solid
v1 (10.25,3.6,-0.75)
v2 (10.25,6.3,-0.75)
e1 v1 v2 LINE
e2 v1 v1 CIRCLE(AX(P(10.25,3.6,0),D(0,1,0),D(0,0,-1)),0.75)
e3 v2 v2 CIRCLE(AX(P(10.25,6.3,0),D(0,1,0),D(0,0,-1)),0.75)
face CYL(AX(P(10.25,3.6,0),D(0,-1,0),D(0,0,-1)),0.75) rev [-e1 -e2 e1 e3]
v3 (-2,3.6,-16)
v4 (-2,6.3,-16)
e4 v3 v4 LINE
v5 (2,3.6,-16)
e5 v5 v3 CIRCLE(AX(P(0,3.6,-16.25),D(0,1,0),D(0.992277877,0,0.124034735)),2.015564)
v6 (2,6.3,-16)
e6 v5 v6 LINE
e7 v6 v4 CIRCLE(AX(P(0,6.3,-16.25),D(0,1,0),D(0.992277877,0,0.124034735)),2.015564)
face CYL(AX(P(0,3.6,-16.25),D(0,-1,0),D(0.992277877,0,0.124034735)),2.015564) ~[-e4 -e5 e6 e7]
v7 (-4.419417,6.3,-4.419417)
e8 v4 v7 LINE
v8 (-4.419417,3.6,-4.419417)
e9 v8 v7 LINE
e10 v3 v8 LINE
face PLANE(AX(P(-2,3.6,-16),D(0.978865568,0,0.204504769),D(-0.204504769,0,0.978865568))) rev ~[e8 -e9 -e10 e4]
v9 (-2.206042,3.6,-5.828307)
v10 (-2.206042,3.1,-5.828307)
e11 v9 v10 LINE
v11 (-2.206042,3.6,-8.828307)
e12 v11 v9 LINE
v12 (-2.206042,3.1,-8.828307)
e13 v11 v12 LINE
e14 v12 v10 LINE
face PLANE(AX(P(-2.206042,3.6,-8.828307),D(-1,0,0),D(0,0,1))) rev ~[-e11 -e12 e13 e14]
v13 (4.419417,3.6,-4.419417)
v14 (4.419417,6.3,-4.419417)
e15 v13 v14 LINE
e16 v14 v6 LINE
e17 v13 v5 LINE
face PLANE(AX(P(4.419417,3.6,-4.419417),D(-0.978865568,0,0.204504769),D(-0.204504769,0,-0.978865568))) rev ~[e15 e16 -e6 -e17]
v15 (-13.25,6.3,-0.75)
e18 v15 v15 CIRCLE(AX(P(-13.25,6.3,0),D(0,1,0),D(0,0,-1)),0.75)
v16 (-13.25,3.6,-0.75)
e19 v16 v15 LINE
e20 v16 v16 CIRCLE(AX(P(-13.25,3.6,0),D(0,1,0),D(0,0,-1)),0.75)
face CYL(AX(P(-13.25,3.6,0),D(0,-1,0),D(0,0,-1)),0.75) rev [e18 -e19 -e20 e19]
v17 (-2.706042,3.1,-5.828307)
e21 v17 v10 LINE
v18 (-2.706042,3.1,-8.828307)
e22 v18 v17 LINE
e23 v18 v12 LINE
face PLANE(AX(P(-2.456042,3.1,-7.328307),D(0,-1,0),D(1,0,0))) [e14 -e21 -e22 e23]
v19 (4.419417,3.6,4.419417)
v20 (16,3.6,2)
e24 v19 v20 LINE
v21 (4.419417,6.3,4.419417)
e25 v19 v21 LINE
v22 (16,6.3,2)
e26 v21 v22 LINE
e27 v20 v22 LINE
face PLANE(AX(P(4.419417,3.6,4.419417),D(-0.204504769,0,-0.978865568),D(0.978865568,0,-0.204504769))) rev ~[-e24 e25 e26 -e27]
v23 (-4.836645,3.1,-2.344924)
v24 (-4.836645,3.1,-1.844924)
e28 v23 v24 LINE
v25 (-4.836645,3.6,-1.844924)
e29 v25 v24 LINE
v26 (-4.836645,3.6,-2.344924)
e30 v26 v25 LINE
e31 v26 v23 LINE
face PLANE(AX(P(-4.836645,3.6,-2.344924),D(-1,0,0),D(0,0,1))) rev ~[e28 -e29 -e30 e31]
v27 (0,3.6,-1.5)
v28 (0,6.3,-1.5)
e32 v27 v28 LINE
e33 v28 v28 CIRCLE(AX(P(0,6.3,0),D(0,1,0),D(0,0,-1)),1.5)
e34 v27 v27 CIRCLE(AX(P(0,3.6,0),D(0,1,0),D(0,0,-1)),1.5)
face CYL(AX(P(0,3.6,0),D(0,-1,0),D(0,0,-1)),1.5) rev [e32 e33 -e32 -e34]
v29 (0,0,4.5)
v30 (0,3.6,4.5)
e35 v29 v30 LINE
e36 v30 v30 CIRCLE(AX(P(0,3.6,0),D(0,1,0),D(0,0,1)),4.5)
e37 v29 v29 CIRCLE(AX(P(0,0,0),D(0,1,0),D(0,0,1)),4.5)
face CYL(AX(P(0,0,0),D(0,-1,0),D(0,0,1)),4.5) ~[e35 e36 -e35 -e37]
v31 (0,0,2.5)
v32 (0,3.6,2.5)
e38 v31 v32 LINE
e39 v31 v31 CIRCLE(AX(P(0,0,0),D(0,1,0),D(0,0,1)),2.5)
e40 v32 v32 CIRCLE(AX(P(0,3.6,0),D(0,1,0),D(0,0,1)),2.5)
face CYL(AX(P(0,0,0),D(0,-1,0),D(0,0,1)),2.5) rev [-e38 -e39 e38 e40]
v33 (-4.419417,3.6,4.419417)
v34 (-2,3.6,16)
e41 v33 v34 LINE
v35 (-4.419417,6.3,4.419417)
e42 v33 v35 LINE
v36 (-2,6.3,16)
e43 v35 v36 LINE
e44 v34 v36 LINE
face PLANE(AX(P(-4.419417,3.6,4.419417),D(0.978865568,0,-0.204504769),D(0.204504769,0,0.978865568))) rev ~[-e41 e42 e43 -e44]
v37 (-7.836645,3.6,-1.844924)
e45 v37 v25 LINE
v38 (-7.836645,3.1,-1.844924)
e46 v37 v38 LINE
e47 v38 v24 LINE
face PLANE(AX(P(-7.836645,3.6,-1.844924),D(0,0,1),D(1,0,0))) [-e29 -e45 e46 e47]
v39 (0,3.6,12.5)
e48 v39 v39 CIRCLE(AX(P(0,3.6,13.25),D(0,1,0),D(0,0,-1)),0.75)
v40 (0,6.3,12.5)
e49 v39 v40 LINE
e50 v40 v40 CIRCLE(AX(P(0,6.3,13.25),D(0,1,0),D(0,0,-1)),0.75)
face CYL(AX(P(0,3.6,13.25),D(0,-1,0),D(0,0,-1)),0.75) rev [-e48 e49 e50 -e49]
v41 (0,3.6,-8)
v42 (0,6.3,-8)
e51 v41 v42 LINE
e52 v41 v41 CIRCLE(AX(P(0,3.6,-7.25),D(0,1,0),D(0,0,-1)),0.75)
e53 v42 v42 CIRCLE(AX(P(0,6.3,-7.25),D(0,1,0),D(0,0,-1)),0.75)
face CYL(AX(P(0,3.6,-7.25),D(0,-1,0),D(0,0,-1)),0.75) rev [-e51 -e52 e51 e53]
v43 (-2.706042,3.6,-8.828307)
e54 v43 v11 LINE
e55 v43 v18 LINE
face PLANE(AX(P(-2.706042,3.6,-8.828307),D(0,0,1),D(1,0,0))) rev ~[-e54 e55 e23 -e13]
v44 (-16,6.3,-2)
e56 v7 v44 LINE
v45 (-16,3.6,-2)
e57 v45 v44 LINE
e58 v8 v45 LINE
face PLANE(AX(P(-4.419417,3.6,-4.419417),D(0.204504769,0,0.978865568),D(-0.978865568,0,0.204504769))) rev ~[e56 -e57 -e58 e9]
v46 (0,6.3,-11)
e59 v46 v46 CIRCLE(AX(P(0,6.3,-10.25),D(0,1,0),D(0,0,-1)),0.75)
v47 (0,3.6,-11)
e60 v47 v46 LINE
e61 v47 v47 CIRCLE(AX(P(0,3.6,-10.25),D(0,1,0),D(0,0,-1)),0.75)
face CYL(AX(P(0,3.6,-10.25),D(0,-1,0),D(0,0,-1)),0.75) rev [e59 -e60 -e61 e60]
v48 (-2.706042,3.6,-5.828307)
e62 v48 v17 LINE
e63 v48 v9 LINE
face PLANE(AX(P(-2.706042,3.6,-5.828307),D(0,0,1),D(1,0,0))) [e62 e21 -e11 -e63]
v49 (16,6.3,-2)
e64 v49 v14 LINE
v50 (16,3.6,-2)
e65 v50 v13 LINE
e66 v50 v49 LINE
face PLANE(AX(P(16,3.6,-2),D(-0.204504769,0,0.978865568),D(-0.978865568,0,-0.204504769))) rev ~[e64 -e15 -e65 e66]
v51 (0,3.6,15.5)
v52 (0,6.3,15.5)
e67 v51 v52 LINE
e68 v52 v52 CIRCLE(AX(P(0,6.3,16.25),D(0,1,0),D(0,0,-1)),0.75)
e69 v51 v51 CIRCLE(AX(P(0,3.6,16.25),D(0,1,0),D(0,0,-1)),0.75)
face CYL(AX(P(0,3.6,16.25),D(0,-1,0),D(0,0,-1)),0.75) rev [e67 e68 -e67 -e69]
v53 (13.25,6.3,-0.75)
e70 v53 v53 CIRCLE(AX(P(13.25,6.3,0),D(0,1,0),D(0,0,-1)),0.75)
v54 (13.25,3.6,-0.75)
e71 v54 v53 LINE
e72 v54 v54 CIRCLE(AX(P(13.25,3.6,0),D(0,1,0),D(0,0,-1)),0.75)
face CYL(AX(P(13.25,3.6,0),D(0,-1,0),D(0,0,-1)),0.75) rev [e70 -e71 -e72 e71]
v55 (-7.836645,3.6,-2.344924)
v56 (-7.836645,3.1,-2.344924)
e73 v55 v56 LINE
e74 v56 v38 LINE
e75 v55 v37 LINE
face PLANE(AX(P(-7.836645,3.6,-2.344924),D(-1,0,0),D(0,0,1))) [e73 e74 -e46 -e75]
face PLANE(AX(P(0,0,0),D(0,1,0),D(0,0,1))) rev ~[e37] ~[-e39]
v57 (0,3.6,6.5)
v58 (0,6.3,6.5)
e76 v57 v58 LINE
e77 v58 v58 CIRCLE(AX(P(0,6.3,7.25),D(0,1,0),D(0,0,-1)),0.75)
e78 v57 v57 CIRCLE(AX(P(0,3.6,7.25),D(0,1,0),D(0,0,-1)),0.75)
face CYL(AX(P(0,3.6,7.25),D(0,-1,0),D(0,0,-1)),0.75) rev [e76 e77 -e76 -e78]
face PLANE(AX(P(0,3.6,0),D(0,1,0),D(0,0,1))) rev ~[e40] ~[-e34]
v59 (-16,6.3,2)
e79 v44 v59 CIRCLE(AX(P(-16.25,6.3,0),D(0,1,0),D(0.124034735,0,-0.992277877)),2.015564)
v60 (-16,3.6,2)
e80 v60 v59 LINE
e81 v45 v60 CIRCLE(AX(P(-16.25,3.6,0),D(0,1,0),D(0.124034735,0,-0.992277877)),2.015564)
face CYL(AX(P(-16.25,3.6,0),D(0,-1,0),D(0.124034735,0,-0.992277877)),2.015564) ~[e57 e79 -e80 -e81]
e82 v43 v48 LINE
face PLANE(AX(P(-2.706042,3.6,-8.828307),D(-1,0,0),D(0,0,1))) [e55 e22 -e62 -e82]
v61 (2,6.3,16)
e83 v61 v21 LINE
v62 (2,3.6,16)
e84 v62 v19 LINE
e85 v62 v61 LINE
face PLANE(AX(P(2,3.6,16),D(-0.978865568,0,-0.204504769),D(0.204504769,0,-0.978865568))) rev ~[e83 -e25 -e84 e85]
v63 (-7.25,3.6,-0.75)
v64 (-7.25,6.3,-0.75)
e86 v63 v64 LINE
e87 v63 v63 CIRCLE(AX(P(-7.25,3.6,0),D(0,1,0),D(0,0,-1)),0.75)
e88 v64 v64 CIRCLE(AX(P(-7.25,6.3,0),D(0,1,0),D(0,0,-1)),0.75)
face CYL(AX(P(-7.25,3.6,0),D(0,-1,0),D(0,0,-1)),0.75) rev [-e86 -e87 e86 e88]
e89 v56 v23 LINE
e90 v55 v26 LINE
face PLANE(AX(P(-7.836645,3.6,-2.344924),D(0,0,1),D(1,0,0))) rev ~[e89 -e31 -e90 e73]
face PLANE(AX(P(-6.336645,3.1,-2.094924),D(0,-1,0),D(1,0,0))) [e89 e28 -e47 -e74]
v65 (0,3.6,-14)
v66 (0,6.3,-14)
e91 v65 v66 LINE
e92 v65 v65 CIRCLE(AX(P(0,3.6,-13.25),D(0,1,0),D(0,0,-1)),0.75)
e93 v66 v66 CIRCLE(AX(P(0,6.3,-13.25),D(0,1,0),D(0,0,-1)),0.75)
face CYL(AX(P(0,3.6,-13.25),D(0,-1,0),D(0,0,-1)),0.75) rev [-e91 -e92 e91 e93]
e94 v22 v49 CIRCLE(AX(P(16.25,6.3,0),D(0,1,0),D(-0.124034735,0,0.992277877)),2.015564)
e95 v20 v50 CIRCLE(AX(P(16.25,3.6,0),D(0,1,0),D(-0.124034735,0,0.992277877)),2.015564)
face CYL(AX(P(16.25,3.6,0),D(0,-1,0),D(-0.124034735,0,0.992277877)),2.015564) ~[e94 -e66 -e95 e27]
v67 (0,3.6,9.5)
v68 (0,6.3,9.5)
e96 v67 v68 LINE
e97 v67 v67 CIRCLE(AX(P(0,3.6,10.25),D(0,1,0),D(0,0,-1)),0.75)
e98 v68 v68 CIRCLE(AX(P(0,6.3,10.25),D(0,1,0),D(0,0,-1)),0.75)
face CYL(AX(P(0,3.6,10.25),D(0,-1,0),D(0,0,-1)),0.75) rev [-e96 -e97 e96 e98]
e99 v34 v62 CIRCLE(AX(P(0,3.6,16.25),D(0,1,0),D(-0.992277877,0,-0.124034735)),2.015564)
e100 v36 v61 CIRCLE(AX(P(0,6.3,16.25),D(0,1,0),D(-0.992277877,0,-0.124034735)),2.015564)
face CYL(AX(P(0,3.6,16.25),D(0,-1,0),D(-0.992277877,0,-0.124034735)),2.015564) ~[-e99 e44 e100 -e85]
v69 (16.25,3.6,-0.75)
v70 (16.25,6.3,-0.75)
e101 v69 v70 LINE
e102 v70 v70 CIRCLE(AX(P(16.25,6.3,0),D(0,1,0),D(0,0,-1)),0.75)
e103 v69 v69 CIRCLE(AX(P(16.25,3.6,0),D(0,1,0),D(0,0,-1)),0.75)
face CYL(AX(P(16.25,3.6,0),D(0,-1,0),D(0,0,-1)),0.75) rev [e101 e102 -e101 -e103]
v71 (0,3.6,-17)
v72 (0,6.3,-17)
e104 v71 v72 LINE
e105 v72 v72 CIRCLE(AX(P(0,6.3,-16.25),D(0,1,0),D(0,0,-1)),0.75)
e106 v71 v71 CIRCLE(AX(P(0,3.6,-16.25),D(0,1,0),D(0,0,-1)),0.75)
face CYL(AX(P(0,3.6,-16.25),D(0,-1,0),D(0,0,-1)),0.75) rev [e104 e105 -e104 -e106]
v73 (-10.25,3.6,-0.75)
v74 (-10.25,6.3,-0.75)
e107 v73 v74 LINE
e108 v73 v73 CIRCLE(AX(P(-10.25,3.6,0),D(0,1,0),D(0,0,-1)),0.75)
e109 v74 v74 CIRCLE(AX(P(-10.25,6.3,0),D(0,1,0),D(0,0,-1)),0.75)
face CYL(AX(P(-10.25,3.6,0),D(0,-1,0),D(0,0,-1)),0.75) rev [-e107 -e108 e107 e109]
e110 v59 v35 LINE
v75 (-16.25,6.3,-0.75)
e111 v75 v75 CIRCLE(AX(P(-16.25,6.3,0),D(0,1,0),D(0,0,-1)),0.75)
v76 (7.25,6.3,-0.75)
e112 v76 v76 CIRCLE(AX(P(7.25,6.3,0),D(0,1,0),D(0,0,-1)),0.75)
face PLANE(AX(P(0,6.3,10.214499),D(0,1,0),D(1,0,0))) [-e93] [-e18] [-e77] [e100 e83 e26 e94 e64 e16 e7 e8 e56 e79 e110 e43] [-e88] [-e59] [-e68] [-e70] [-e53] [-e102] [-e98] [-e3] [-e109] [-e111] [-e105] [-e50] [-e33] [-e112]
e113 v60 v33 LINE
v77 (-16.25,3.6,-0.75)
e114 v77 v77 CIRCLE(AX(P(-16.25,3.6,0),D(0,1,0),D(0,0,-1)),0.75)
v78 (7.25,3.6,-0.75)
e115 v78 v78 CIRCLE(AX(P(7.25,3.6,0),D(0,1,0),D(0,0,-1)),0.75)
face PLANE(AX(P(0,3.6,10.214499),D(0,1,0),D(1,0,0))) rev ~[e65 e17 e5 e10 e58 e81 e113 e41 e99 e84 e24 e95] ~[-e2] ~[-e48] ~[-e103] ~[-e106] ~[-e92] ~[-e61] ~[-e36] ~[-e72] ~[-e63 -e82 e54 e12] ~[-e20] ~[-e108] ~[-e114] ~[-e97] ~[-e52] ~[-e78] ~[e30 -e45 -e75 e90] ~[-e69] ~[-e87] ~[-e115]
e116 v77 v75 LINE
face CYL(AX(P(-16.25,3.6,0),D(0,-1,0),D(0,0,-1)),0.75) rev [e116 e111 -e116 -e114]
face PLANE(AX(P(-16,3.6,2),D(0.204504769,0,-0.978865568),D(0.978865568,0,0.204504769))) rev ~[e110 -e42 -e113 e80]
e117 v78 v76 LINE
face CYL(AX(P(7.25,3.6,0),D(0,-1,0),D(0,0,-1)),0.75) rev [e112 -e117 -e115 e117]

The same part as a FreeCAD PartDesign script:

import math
import FreeCAD as App
import Part
import Sketcher
Q = App.Units.Quantity

doc = App.newDocument("Part")
body = doc.addObject("PartDesign::Body", "Body")

# Sketch on XZ plane
sketch1 = body.newObject("Sketcher::SketchObject", "Sketch")
sketch1.AttachmentSupport = (doc.getObject("XZ_Plane"), [""])
sketch1.MapMode = "FlatFace"
sketch1.addGeometry([
    Part.Circle(App.Vector(0, 0, 0), App.Vector(0, 0, 1), 4.5),
    Part.Circle(App.Vector(0, 0, 0), App.Vector(0, 0, 1), 2.5),
], False)
sketch1.addConstraint([
    Sketcher.Constraint("Coincident", 0, 3, -1, 1),
    Sketcher.Constraint("Coincident", 1, 3, -1, 1),
    Sketcher.Constraint("Diameter", 0, Q("9 mm")),
    Sketcher.Constraint("Diameter", 1, Q("5 mm")),
])
pad1 = body.newObject("PartDesign::Pad", "Pad")
pad1.Profile = sketch1
pad1.Length = 3.6
pad1.Reversed = True

# Sketch on XZ plane
sketch2 = body.newObject("Sketcher::SketchObject", "Sketch001")
sketch2.AttachmentSupport = (doc.getObject("XZ_Plane"), [""])
sketch2.MapMode = "FlatFace"
sketch2.AttachmentOffset = App.Placement(App.Vector(0, 0, -3.6), App.Rotation())
sketch2.addGeometry([
    Part.LineSegment(App.Vector(2, 16, 0), App.Vector(4.4, 4.4, 0)),  # 0
    Part.LineSegment(App.Vector(4.4, 4.4, 0), App.Vector(16, 2, 0)),  # 1
    Part.ArcOfCircle(Part.Circle(App.Vector(16.2, 0, 0), App.Vector(0, 0, 1), 2), math.radians(-97), math.radians(97)),  # 2
    Part.LineSegment(App.Vector(16, -2, 0), App.Vector(4.4, -4.4, 0)),  # 3
    Part.LineSegment(App.Vector(4.4, -4.4, 0), App.Vector(2, -16, 0)),  # 4
    Part.ArcOfCircle(Part.Circle(App.Vector(0, -16.2, 0), App.Vector(0, 0, 1), 2), math.radians(173), math.radians(367)),  # 5
    Part.LineSegment(App.Vector(-2, -16, 0), App.Vector(-4.4, -4.4, 0)),  # 6
    Part.LineSegment(App.Vector(-4.4, -4.4, 0), App.Vector(-16, -2, 0)),  # 7
    Part.ArcOfCircle(Part.Circle(App.Vector(-16.2, 0, 0), App.Vector(0, 0, 1), 2), math.radians(83), math.radians(277)),  # 8
    Part.LineSegment(App.Vector(-16, 2, 0), App.Vector(-4.4, 4.4, 0)),  # 9
    Part.LineSegment(App.Vector(-4.4, 4.4, 0), App.Vector(-2, 16, 0)),  # 10
    Part.ArcOfCircle(Part.Circle(App.Vector(0, 16.2, 0), App.Vector(0, 0, 1), 2), math.radians(-7), math.radians(187)),  # 11
    Part.Circle(App.Vector(0, 16.2, 0), App.Vector(0, 0, 1), 0.8),  # 12
    Part.Circle(App.Vector(0, 13.2, 0), App.Vector(0, 0, 1), 0.8),  # 13
    Part.Circle(App.Vector(0, 10.2, 0), App.Vector(0, 0, 1), 0.8),  # 14
    Part.Circle(App.Vector(0, 7.2, 0), App.Vector(0, 0, 1), 0.8),  # 15
    Part.Circle(App.Vector(16.2, 0, 0), App.Vector(0, 0, 1), 0.8),  # 16
    Part.Circle(App.Vector(13.2, 0, 0), App.Vector(0, 0, 1), 0.8),  # 17
    Part.Circle(App.Vector(7.2, 0, 0), App.Vector(0, 0, 1), 0.8),  # 18
    Part.Circle(App.Vector(10.2, 0, 0), App.Vector(0, 0, 1), 0.8),  # 19
    Part.Circle(App.Vector(0, -16.2, 0), App.Vector(0, 0, 1), 0.8),  # 20
    Part.Circle(App.Vector(0, -7.2, 0), App.Vector(0, 0, 1), 0.8),  # 21
    Part.Circle(App.Vector(0, -10.2, 0), App.Vector(0, 0, 1), 0.8),  # 22
    Part.Circle(App.Vector(0, -13.2, 0), App.Vector(0, 0, 1), 0.8),  # 23
    Part.Circle(App.Vector(-7.2, 0, 0), App.Vector(0, 0, 1), 0.8),  # 24
    Part.Circle(App.Vector(-16.2, 0, 0), App.Vector(0, 0, 1), 0.8),  # 25
    Part.Circle(App.Vector(-13.2, 0, 0), App.Vector(0, 0, 1), 0.8),  # 26
    Part.Circle(App.Vector(-10.2, 0, 0), App.Vector(0, 0, 1), 0.8),  # 27
    Part.Circle(App.Vector(0, 0, 0), App.Vector(0, 0, 1), 1.5),  # 28
], False)
sketch2.addConstraint([
    Sketcher.Constraint("Coincident", 0, 2, 1, 1),
    Sketcher.Constraint("Coincident", 1, 2, 2, 2),
    Sketcher.Constraint("Coincident", 2, 1, 3, 1),
    Sketcher.Constraint("Coincident", 3, 2, 4, 1),
    Sketcher.Constraint("Coincident", 4, 2, 5, 2),
    Sketcher.Constraint("Coincident", 5, 1, 6, 1),
    Sketcher.Constraint("Coincident", 6, 2, 7, 1),
    Sketcher.Constraint("Coincident", 7, 2, 8, 2),
    Sketcher.Constraint("Coincident", 8, 1, 9, 1),
    Sketcher.Constraint("Coincident", 9, 2, 10, 1),
    Sketcher.Constraint("Coincident", 10, 2, 11, 2),
    Sketcher.Constraint("Coincident", 11, 1, 0, 1),
    Sketcher.Constraint("Coincident", 28, 3, -1, 1),
    Sketcher.Constraint("Coincident", 12, 3, 11, 3),
    Sketcher.Constraint("Coincident", 16, 3, 2, 3),
    Sketcher.Constraint("Coincident", 20, 3, 5, 3),
    Sketcher.Constraint("Coincident", 25, 3, 8, 3),
    Sketcher.Constraint("Equal", 2, 5),
    Sketcher.Constraint("Equal", 5, 8),
    Sketcher.Constraint("Equal", 8, 11),
    Sketcher.Constraint("Equal", 12, 13),
    Sketcher.Constraint("Equal", 13, 14),
    Sketcher.Constraint("Equal", 14, 15),
    Sketcher.Constraint("Equal", 15, 16),
    Sketcher.Constraint("Equal", 16, 17),
    Sketcher.Constraint("Equal", 17, 18),
    Sketcher.Constraint("Equal", 18, 19),
    Sketcher.Constraint("Equal", 19, 20),
    Sketcher.Constraint("Equal", 20, 21),
    Sketcher.Constraint("Equal", 21, 22),
    Sketcher.Constraint("Equal", 22, 23),
    Sketcher.Constraint("Equal", 23, 24),
    Sketcher.Constraint("Equal", 24, 25),
    Sketcher.Constraint("Equal", 25, 26),
    Sketcher.Constraint("Equal", 26, 27),
    Sketcher.Constraint("Symmetric", 2, 3, 8, 3, -1, 1),
    Sketcher.Constraint("Symmetric", 5, 3, 11, 3, -1, 1),
    Sketcher.Constraint("Symmetric", 15, 3, 21, 3, -1, 1),
    Sketcher.Constraint("Symmetric", 14, 3, 22, 3, -1, 1),
    Sketcher.Constraint("Symmetric", 13, 3, 23, 3, -1, 1),
    Sketcher.Constraint("Symmetric", 18, 3, 24, 3, -1, 1),
    Sketcher.Constraint("Symmetric", 17, 3, 26, 3, -1, 1),
    Sketcher.Constraint("Symmetric", 19, 3, 27, 3, -1, 1),
    Sketcher.Constraint("Symmetric", 0, 2, 6, 2, -1, 1),
    Sketcher.Constraint("Symmetric", 3, 2, 9, 2, -1, 1),
    Sketcher.Constraint("Symmetric", 4, 2, 5, 1, -2),
    Sketcher.Constraint("Symmetric", 3, 2, 6, 2, -2),
    Sketcher.Constraint("Symmetric", 2, 1, 7, 2, -2),
    Sketcher.Constraint("PointOnObject", 13, 3, -2),
    Sketcher.Constraint("PointOnObject", 14, 3, -2),
    Sketcher.Constraint("PointOnObject", 15, 3, -2),
    Sketcher.Constraint("PointOnObject", 17, 3, -1),
    Sketcher.Constraint("PointOnObject", 18, 3, -1),
    Sketcher.Constraint("PointOnObject", 19, 3, -1),
    Sketcher.Constraint("Perpendicular", 0, 3),
    Sketcher.Constraint("Perpendicular", 1, 4),
    Sketcher.Constraint("Perpendicular", 3, 6),
    Sketcher.Constraint("Perpendicular", 6, 9),
    Sketcher.Constraint("Perpendicular", 7, 10),
    Sketcher.Constraint("Equal", 0, 1),
    Sketcher.Constraint("Diameter", 28, Q("3 mm")),
    Sketcher.Constraint("Diameter", 12, Q("1.5 mm")),
    Sketcher.Constraint("DistanceX", -1, 1, 1, 2, Q("16 mm")),
    Sketcher.Constraint("DistanceY", -1, 1, 1, 2, Q("2 mm")),
    Sketcher.Constraint("DistanceX", -1, 1, 4, 2, Q("2 mm")),
    Sketcher.Constraint("DistanceY", 13, 3, 11, 3, Q("3 mm")),
    Sketcher.Constraint("DistanceY", 14, 3, 13, 3, Q("3 mm")),
    Sketcher.Constraint("DistanceY", 15, 3, 14, 3, Q("3 mm")),
    Sketcher.Constraint("DistanceX", 17, 3, 2, 3, Q("3 mm")),
    Sketcher.Constraint("DistanceX", 18, 3, 17, 3, Q("6 mm")),
    Sketcher.Constraint("DistanceX", 19, 3, 17, 3, Q("3 mm")),
    Sketcher.Constraint("DistanceX", 8, 3, 2, 3, Q("32.5 mm")),
    Sketcher.Constraint("Distance", 0, Q("11.830616 mm")),
])
pad2 = body.newObject("PartDesign::Pad", "Pad001")
pad2.Profile = sketch2
pad2.Length = 2.7
pad2.Reversed = True

# Sketch on XZ plane
sketch3 = body.newObject("Sketcher::SketchObject", "Sketch002")
sketch3.AttachmentSupport = (doc.getObject("XZ_Plane"), [""])
sketch3.MapMode = "FlatFace"
sketch3.AttachmentOffset = App.Placement(App.Vector(0, 0, -3.6), App.Rotation())
sketch3.addGeometry([
    Part.LineSegment(App.Vector(-7.8, -1.8, 0), App.Vector(-7.8, -2.3, 0)),  # 0
    Part.LineSegment(App.Vector(-7.8, -2.3, 0), App.Vector(-4.8, -2.3, 0)),  # 1
    Part.LineSegment(App.Vector(-4.8, -2.3, 0), App.Vector(-4.8, -1.8, 0)),  # 2
    Part.LineSegment(App.Vector(-4.8, -1.8, 0), App.Vector(-7.8, -1.8, 0)),  # 3
    Part.LineSegment(App.Vector(-2.7, -5.8, 0), App.Vector(-2.7, -8.8, 0)),  # 4
    Part.LineSegment(App.Vector(-2.7, -8.8, 0), App.Vector(-2.2, -8.8, 0)),  # 5
    Part.LineSegment(App.Vector(-2.2, -8.8, 0), App.Vector(-2.2, -5.8, 0)),  # 6
    Part.LineSegment(App.Vector(-2.2, -5.8, 0), App.Vector(-2.7, -5.8, 0)),  # 7
], False)
sketch3.addConstraint([
    Sketcher.Constraint("Coincident", 0, 2, 1, 1),
    Sketcher.Constraint("Coincident", 1, 2, 2, 1),
    Sketcher.Constraint("Coincident", 2, 2, 3, 1),
    Sketcher.Constraint("Coincident", 3, 2, 0, 1),
    Sketcher.Constraint("Coincident", 4, 2, 5, 1),
    Sketcher.Constraint("Coincident", 5, 2, 6, 1),
    Sketcher.Constraint("Coincident", 6, 2, 7, 1),
    Sketcher.Constraint("Coincident", 7, 2, 4, 1),
    Sketcher.Constraint("Vertical", 0),
    Sketcher.Constraint("Horizontal", 1),
    Sketcher.Constraint("Vertical", 2),
    Sketcher.Constraint("Horizontal", 3),
    Sketcher.Constraint("Vertical", 4),
    Sketcher.Constraint("Horizontal", 5),
    Sketcher.Constraint("Vertical", 6),
    Sketcher.Constraint("Horizontal", 7),
    Sketcher.Constraint("Equal", 7, 0),
    Sketcher.Constraint("Equal", 3, 4),
    Sketcher.Constraint("DistanceX", 1, 1, 1, 2, Q("3 mm")),
    Sketcher.Constraint("DistanceX", 5, 1, 5, 2, Q("0.5 mm")),
    Sketcher.Constraint("DistanceX", 4, 2, -1, 1, Q("2.706042 mm")),
    Sketcher.Constraint("DistanceX", 0, 2, -1, 1, Q("7.836645 mm")),
    Sketcher.Constraint("DistanceY", 0, 2, -1, 1, Q("2.344924 mm")),
    Sketcher.Constraint("DistanceY", 4, 2, -1, 1, Q("8.828307 mm")),
])
pad3 = body.newObject("PartDesign::Pad", "Pad002")
pad3.Profile = sketch3
pad3.Length = 0.5

doc.recompute()
